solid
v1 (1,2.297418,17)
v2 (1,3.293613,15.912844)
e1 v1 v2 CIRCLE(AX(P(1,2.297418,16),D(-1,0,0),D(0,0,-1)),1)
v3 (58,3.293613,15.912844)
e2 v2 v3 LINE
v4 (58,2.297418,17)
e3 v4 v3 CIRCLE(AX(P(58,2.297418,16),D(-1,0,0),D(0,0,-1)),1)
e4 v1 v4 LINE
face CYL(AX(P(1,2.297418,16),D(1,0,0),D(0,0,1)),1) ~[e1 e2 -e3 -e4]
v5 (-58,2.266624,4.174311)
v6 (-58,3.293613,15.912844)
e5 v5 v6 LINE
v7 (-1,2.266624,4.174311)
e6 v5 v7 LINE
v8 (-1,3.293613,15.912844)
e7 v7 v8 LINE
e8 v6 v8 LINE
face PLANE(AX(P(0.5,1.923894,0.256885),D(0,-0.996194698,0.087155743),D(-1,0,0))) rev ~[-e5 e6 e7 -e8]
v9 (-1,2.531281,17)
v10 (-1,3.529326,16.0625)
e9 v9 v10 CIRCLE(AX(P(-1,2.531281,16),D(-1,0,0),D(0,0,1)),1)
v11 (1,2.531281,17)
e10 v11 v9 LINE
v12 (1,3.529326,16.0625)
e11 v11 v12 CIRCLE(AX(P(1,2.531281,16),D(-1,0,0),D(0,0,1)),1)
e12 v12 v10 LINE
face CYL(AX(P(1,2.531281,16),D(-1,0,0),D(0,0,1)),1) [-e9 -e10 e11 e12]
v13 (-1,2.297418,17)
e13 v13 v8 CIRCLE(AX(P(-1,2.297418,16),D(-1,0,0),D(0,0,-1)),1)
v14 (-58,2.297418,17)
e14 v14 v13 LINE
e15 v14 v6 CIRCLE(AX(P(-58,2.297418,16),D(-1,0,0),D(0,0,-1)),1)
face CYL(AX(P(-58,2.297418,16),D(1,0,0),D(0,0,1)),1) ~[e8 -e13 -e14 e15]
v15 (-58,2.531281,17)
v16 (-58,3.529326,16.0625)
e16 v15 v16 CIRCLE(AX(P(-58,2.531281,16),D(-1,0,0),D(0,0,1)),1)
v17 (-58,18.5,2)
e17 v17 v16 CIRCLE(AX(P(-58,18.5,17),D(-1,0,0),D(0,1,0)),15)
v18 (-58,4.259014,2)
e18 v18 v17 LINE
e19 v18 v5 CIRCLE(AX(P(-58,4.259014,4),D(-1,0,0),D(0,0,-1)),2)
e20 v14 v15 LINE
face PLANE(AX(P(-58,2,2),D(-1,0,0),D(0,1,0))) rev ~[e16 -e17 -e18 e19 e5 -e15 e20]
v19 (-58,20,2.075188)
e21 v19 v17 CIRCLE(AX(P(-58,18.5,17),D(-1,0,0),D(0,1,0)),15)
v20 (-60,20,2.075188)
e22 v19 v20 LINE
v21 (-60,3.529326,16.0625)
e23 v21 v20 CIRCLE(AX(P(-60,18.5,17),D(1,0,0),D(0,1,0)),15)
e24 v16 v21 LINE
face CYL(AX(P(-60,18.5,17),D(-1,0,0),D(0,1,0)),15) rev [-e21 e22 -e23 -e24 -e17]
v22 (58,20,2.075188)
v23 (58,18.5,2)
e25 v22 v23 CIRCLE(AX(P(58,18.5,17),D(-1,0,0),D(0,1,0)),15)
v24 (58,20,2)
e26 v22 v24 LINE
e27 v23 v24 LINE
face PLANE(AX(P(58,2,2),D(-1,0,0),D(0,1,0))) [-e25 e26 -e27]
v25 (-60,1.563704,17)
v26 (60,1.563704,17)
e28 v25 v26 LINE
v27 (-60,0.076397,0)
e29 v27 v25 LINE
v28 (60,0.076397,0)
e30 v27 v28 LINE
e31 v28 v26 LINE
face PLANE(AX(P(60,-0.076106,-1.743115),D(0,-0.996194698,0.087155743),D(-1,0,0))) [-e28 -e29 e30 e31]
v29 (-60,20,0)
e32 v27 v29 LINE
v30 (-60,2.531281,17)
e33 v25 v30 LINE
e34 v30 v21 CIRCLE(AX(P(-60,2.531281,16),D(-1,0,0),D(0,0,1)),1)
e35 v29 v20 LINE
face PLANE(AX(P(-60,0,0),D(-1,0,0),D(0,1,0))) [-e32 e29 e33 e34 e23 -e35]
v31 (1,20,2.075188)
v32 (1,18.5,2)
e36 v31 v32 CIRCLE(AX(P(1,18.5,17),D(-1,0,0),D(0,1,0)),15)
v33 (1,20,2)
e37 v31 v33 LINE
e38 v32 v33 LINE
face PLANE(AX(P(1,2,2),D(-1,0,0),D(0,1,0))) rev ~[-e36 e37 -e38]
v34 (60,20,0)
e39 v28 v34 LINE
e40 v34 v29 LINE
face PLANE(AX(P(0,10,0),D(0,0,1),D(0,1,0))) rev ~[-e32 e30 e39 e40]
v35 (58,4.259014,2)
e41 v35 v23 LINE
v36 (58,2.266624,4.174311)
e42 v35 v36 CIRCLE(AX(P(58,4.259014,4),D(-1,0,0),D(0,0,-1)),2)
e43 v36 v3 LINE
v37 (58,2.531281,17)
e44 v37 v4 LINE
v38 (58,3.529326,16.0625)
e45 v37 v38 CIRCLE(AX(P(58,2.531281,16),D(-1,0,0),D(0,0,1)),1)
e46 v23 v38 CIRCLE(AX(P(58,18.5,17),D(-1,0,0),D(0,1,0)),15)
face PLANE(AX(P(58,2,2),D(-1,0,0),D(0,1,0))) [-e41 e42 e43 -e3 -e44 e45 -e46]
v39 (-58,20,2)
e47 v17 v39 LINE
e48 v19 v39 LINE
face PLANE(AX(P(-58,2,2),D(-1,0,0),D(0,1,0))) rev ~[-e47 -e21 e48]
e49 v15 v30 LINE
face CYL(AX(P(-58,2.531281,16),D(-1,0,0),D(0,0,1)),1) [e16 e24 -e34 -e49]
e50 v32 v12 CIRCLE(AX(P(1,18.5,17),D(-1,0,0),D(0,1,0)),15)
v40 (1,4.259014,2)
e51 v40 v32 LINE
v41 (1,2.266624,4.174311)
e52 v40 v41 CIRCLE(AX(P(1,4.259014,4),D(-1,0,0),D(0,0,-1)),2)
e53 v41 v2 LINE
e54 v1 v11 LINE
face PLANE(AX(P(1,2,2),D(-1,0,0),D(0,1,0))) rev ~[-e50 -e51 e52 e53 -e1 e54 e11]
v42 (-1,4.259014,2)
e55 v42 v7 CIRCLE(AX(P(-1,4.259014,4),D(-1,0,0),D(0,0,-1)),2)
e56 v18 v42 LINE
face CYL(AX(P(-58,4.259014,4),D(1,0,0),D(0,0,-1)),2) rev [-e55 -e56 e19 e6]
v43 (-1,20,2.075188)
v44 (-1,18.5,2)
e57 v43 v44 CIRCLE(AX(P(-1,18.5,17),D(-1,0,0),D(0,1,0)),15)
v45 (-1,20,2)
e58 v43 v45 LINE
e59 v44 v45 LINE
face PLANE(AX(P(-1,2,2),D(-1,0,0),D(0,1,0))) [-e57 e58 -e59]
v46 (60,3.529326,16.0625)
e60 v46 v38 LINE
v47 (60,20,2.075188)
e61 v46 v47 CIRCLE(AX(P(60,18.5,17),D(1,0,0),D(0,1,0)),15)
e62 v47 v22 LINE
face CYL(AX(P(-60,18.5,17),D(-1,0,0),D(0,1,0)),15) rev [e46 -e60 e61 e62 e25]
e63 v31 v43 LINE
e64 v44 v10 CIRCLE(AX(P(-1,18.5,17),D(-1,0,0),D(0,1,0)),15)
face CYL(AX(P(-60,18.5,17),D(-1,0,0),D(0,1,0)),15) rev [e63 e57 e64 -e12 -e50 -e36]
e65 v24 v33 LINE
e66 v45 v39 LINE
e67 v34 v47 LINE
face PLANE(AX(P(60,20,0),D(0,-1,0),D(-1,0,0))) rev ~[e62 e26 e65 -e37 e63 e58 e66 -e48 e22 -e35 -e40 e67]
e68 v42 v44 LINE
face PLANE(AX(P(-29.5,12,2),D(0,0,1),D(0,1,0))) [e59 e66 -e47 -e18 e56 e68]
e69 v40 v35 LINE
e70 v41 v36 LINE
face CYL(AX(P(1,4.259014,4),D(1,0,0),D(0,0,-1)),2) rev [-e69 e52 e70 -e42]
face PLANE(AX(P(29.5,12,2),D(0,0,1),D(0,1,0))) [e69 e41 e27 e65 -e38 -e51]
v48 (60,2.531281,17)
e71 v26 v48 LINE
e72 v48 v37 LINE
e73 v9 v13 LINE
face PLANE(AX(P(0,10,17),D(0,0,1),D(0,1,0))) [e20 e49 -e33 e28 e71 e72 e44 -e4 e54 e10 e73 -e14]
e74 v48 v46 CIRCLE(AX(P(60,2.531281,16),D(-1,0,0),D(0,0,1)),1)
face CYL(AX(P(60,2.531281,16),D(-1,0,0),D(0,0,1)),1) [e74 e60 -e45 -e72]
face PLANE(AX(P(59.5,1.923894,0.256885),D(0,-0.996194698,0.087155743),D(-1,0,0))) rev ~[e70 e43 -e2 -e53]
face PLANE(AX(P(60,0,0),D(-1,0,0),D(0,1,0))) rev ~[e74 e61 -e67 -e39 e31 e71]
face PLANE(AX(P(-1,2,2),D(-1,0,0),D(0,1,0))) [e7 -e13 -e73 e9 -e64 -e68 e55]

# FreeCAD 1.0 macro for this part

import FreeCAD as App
import Part
import Sketcher
Q = App.Units.Quantity


def edges_at(feature, points):
    """Names of the edges that pass closest to the given points."""
    edges = feature.Shape.Edges
    near = lambda p: min(range(len(edges)), key=lambda i: edges[i].distToShape(Part.Vertex(*p))[0])
    return sorted({f"Edge{near(p) + 1}" for p in points})

doc = App.newDocument("Part")
body = doc.addObject("PartDesign::Body", "Body")

# Sketch on XY plane
sketch1 = body.newObject("Sketcher::SketchObject", "Sketch")
sketch1.AttachmentSupport = (doc.getObject("XY_Plane"), [""])
sketch1.MapMode = "FlatFace"
sketch1.addGeometry(Part.LineSegment(App.Vector(0, 120, 0), App.Vector(0, 0, 0)), False)
sketch1.addGeometry(Part.LineSegment(App.Vector(0, 0, 0), App.Vector(20, 0, 0)), False)
sketch1.addGeometry(Part.LineSegment(App.Vector(20, 0, 0), App.Vector(20, 120, 0)), False)
sketch1.addGeometry(Part.LineSegment(App.Vector(20, 120, 0), App.Vector(0, 120, 0)), False)
sketch1.addConstraint(Sketcher.Constraint("Coincident", 0, 2, 1, 1))
sketch1.addConstraint(Sketcher.Constraint("Coincident", 1, 2, 2, 1))
sketch1.addConstraint(Sketcher.Constraint("Coincident", 2, 2, 3, 1))
sketch1.addConstraint(Sketcher.Constraint("Coincident", 3, 2, 0, 1))
sketch1.addConstraint(Sketcher.Constraint("Vertical", 0))
sketch1.addConstraint(Sketcher.Constraint("Horizontal", 1))
sketch1.addConstraint(Sketcher.Constraint("Vertical", 2))
sketch1.addConstraint(Sketcher.Constraint("Horizontal", 3))
sketch1.addConstraint(Sketcher.Constraint("Coincident", 0, 2, -1, 1))
sketch1.addConstraint(Sketcher.Constraint("DistanceX", 1, 1, 1, 2, Q("20 mm")))
sketch1.addConstraint(Sketcher.Constraint("DistanceY", 0, 2, 0, 1, Q("120 mm")))
pad1 = body.newObject("PartDesign::Pad", "Pad")
pad1.Profile = sketch1
pad1.Length = 25
body2 = doc.addObject("PartDesign::Body", "Body001")
doc.recompute()

body.Placement = App.Placement(App.Vector(-20, -60, 0), App.Rotation(App.Vector(0, 1, 0), 5))
boolean = body2.newObject("PartDesign::Boolean", "Boolean")
boolean.Type = "Fuse"
boolean.addObjects([body])
body3 = doc.addObject("PartDesign::Body", "Body002")

# Sketch on XY plane
sketch2 = body3.newObject("Sketcher::SketchObject", "Sketch001")
sketch2.AttachmentSupport = (doc.getObject("XY_Plane002"), [""])
sketch2.MapMode = "FlatFace"
sketch2.addGeometry(Part.LineSegment(App.Vector(0, -2, 0), App.Vector(0, -58, 0)), False)
sketch2.addGeometry(Part.LineSegment(App.Vector(0, -58, 0), App.Vector(20, -58, 0)), False)
sketch2.addGeometry(Part.LineSegment(App.Vector(20, -58, 0), App.Vector(20, -2, 0)), False)
sketch2.addGeometry(Part.LineSegment(App.Vector(20, -2, 0), App.Vector(0, -2, 0)), False)
sketch2.addConstraint(Sketcher.Constraint("Coincident", 0, 2, 1, 1))
sketch2.addConstraint(Sketcher.Constraint("Coincident", 1, 2, 2, 1))
sketch2.addConstraint(Sketcher.Constraint("Coincident", 2, 2, 3, 1))
sketch2.addConstraint(Sketcher.Constraint("Coincident", 3, 2, 0, 1))
sketch2.addConstraint(Sketcher.Constraint("Vertical", 0))
sketch2.addConstraint(Sketcher.Constraint("Horizontal", 1))
sketch2.addConstraint(Sketcher.Constraint("Vertical", 2))
sketch2.addConstraint(Sketcher.Constraint("Horizontal", 3))
sketch2.addConstraint(Sketcher.Constraint("PointOnObject", 0, 2, -2))
sketch2.addConstraint(Sketcher.Constraint("DistanceX", 1, 1, 1, 2, Q("20 mm")))
sketch2.addConstraint(Sketcher.Constraint("DistanceY", 0, 2, 0, 1, Q("57 mm")))
sketch2.addConstraint(Sketcher.Constraint("DistanceY", 0, 2, -1, 1, Q("58.5 mm")))
pad2 = body3.newObject("PartDesign::Pad", "Pad001")
pad2.Profile = sketch2
pad2.Length = 17
doc.recompute()

boolean2 = body3.newObject("PartDesign::Boolean", "Boolean001")
boolean2.Type = "Cut"
boolean2.addObjects([body2])
doc.recompute()

fillet = body3.newObject("PartDesign::Fillet", "Fillet")
fillet.Base = (boolean2, edges_at(boolean2, [(0.076, -30, 0)]))
fillet.Radius = 2
body4 = doc.addObject("PartDesign::Body", "Body003")
doc.recompute()

body3.Placement = App.Placement(App.Vector(2, 0.5, 2), App.Rotation(App.Vector(0, 0, 1), 0))
boolean3 = body4.newObject("PartDesign::Boolean", "Boolean002")
boolean3.Type = "Fuse"
boolean3.addObjects([body3])
body5 = doc.addObject("PartDesign::Body", "Body004")

# Sketch on XY plane
sketch3 = body5.newObject("Sketcher::SketchObject", "Sketch002")
sketch3.AttachmentSupport = (doc.getObject("XY_Plane004"), [""])
sketch3.MapMode = "FlatFace"
sketch3.addGeometry(Part.LineSegment(App.Vector(0, 120, 0), App.Vector(0, 0, 0)), False)
sketch3.addGeometry(Part.LineSegment(App.Vector(0, 0, 0), App.Vector(20, 0, 0)), False)
sketch3.addGeometry(Part.LineSegment(App.Vector(20, 0, 0), App.Vector(20, 120, 0)), False)
sketch3.addGeometry(Part.LineSegment(App.Vector(20, 120, 0), App.Vector(0, 120, 0)), False)
sketch3.addConstraint(Sketcher.Constraint("Coincident", 0, 2, 1, 1))
sketch3.addConstraint(Sketcher.Constraint("Coincident", 1, 2, 2, 1))
sketch3.addConstraint(Sketcher.Constraint("Coincident", 2, 2, 3, 1))
sketch3.addConstraint(Sketcher.Constraint("Coincident", 3, 2, 0, 1))
sketch3.addConstraint(Sketcher.Constraint("Vertical", 0))
sketch3.addConstraint(Sketcher.Constraint("Horizontal", 1))
sketch3.addConstraint(Sketcher.Constraint("Vertical", 2))
sketch3.addConstraint(Sketcher.Constraint("Horizontal", 3))
sketch3.addConstraint(Sketcher.Constraint("Coincident", 0, 2, -1, 1))
sketch3.addConstraint(Sketcher.Constraint("DistanceX", 1, 1, 1, 2, Q("20 mm")))
sketch3.addConstraint(Sketcher.Constraint("DistanceY", 0, 2, 0, 1, Q("120 mm")))
pad3 = body5.newObject("PartDesign::Pad", "Pad002")
pad3.Profile = sketch3
pad3.Length = 25
body6 = doc.addObject("PartDesign::Body", "Body005")
doc.recompute()

body5.Placement = App.Placement(App.Vector(-20, -60, 0), App.Rotation(App.Vector(0, 1, 0), 5))
boolean4 = body6.newObject("PartDesign::Boolean", "Boolean003")
boolean4.Type = "Fuse"
boolean4.addObjects([body5])
body7 = doc.addObject("PartDesign::Body", "Body006")

# Sketch on XY plane
sketch4 = body7.newObject("Sketcher::SketchObject", "Sketch003")
sketch4.AttachmentSupport = (doc.getObject("XY_Plane006"), [""])
sketch4.MapMode = "FlatFace"
sketch4.addGeometry(Part.LineSegment(App.Vector(0, -2, 0), App.Vector(0, -58, 0)), False)
sketch4.addGeometry(Part.LineSegment(App.Vector(0, -58, 0), App.Vector(20, -58, 0)), False)
sketch4.addGeometry(Part.LineSegment(App.Vector(20, -58, 0), App.Vector(20, -2, 0)), False)
sketch4.addGeometry(Part.LineSegment(App.Vector(20, -2, 0), App.Vector(0, -2, 0)), False)
sketch4.addConstraint(Sketcher.Constraint("Coincident", 0, 2, 1, 1))
sketch4.addConstraint(Sketcher.Constraint("Coincident", 1, 2, 2, 1))
sketch4.addConstraint(Sketcher.Constraint("Coincident", 2, 2, 3, 1))
sketch4.addConstraint(Sketcher.Constraint("Coincident", 3, 2, 0, 1))
sketch4.addConstraint(Sketcher.Constraint("Vertical", 0))
sketch4.addConstraint(Sketcher.Constraint("Horizontal", 1))
sketch4.addConstraint(Sketcher.Constraint("Vertical", 2))
sketch4.addConstraint(Sketcher.Constraint("Horizontal", 3))
sketch4.addConstraint(Sketcher.Constraint("PointOnObject", 0, 2, -2))
sketch4.addConstraint(Sketcher.Constraint("DistanceX", 1, 1, 1, 2, Q("20 mm")))
sketch4.addConstraint(Sketcher.Constraint("DistanceY", 0, 2, 0, 1, Q("57 mm")))
sketch4.addConstraint(Sketcher.Constraint("DistanceY", 0, 2, -1, 1, Q("58.5 mm")))
pad4 = body7.newObject("PartDesign::Pad", "Pad003")
pad4.Profile = sketch4
pad4.Length = 17
doc.recompute()

boolean5 = body7.newObject("PartDesign::Boolean", "Boolean004")
boolean5.Type = "Cut"
boolean5.addObjects([body6])
doc.recompute()

fillet2 = body7.newObject("PartDesign::Fillet", "Fillet001")
fillet2.Base = (boolean5, edges_at(boolean5, [(0.076, -30, 0)]))
fillet2.Radius = 2
body8 = doc.addObject("PartDesign::Body", "Body007")
body8.AllowCompound = True
doc.recompute()

body7.Placement = App.Placement(App.Vector(2, 59.5, 2), App.Rotation(App.Vector(0, 0, 1), 0))
boolean6 = body8.newObject("PartDesign::Boolean", "Boolean005")
boolean6.Type = "Fuse"
boolean6.addObjects([body7])
doc.recompute()

boolean7 = body8.newObject("PartDesign::Boolean", "Boolean006")
boolean7.Type = "Fuse"
boolean7.addObjects([body4])
body9 = doc.addObject("PartDesign::Body", "Body008")

# Sketch on XZ plane
sketch5 = body9.newObject("Sketcher::SketchObject", "Sketch004")
sketch5.AttachmentSupport = (doc.getObject("XZ_Plane008"), [""])
sketch5.MapMode = "FlatFace"
sketch5.AttachmentOffset = App.Placement(App.Vector(0, 0, -60), App.Rotation())
sketch5.addGeometry(Part.Circle(App.Vector(18, 17, 0), App.Vector(0, 0, 1), 15), False)
sketch5.addConstraint(Sketcher.Constraint("Diameter", 0, Q("30 mm")))
sketch5.addConstraint(Sketcher.Constraint("DistanceY", -1, 1, 0, 3, Q("17 mm")))
sketch5.addConstraint(Sketcher.Constraint("DistanceX", -1, 1, 0, 3, Q("18.5 mm")))
pad5 = body9.newObject("PartDesign::Pad", "Pad004")
pad5.Profile = sketch5
pad5.Length = 120
body10 = doc.addObject("PartDesign::Body", "Body009")

# Sketch on XY plane
sketch6 = body10.newObject("Sketcher::SketchObject", "Sketch005")
sketch6.AttachmentSupport = (doc.getObject("XY_Plane009"), [""])
sketch6.MapMode = "FlatFace"
sketch6.addGeometry(Part.LineSegment(App.Vector(0, 120, 0), App.Vector(0, 0, 0)), False)
sketch6.addGeometry(Part.LineSegment(App.Vector(0, 0, 0), App.Vector(20, 0, 0)), False)
sketch6.addGeometry(Part.LineSegment(App.Vector(20, 0, 0), App.Vector(20, 120, 0)), False)
sketch6.addGeometry(Part.LineSegment(App.Vector(20, 120, 0), App.Vector(0, 120, 0)), False)
sketch6.addConstraint(Sketcher.Constraint("Coincident", 0, 2, 1, 1))
sketch6.addConstraint(Sketcher.Constraint("Coincident", 1, 2, 2, 1))
sketch6.addConstraint(Sketcher.Constraint("Coincident", 2, 2, 3, 1))
sketch6.addConstraint(Sketcher.Constraint("Coincident", 3, 2, 0, 1))
sketch6.addConstraint(Sketcher.Constraint("Vertical", 0))
sketch6.addConstraint(Sketcher.Constraint("Horizontal", 1))
sketch6.addConstraint(Sketcher.Constraint("Vertical", 2))
sketch6.addConstraint(Sketcher.Constraint("Horizontal", 3))
sketch6.addConstraint(Sketcher.Constraint("Coincident", 0, 2, -1, 1))
sketch6.addConstraint(Sketcher.Constraint("DistanceX", 1, 1, 1, 2, Q("20 mm")))
sketch6.addConstraint(Sketcher.Constraint("DistanceY", 0, 2, 0, 1, Q("120 mm")))
pad6 = body10.newObject("PartDesign::Pad", "Pad005")
pad6.Profile = sketch6
pad6.Length = 25
body11 = doc.addObject("PartDesign::Body", "Body010")
doc.recompute()

body10.Placement = App.Placement(App.Vector(-20, -60, 0), App.Rotation(App.Vector(0, 1, 0), 5))
boolean8 = body11.newObject("PartDesign::Boolean", "Boolean007")
boolean8.Type = "Fuse"
boolean8.addObjects([body10])
body12 = doc.addObject("PartDesign::Body", "Body011")

# Sketch on XY plane
sketch7 = body12.newObject("Sketcher::SketchObject", "Sketch006")
sketch7.AttachmentSupport = (doc.getObject("XY_Plane011"), [""])
sketch7.MapMode = "FlatFace"
sketch7.addGeometry(Part.LineSegment(App.Vector(0, 60, 0), App.Vector(0, -60, 0)), False)
sketch7.addGeometry(Part.LineSegment(App.Vector(0, -60, 0), App.Vector(20, -60, 0)), False)
sketch7.addGeometry(Part.LineSegment(App.Vector(20, -60, 0), App.Vector(20, 60, 0)), False)
sketch7.addGeometry(Part.LineSegment(App.Vector(20, 60, 0), App.Vector(0, 60, 0)), False)
sketch7.addConstraint(Sketcher.Constraint("Coincident", 0, 2, 1, 1))
sketch7.addConstraint(Sketcher.Constraint("Coincident", 1, 2, 2, 1))
sketch7.addConstraint(Sketcher.Constraint("Coincident", 2, 2, 3, 1))
sketch7.addConstraint(Sketcher.Constraint("Coincident", 3, 2, 0, 1))
sketch7.addConstraint(Sketcher.Constraint("Vertical", 0))
sketch7.addConstraint(Sketcher.Constraint("Horizontal", 1))
sketch7.addConstraint(Sketcher.Constraint("Vertical", 2))
sketch7.addConstraint(Sketcher.Constraint("Horizontal", 3))
sketch7.addConstraint(Sketcher.Constraint("Symmetric", 0, 2, 3, 2, -1, 1))
sketch7.addConstraint(Sketcher.Constraint("DistanceX", 1, 1, 1, 2, Q("20 mm")))
sketch7.addConstraint(Sketcher.Constraint("DistanceY", 0, 2, 0, 1, Q("120 mm")))
pad7 = body12.newObject("PartDesign::Pad", "Pad006")
pad7.Profile = sketch7
pad7.Length = 17
doc.recompute()

boolean9 = body12.newObject("PartDesign::Boolean", "Boolean008")
boolean9.Type = "Cut"
boolean9.addObjects([body11])
doc.recompute()

boolean10 = body12.newObject("PartDesign::Boolean", "Boolean009")
boolean10.Type = "Cut"
boolean10.addObjects([body9])
doc.recompute()

boolean11 = body12.newObject("PartDesign::Boolean", "Boolean010")
boolean11.Type = "Cut"
boolean11.addObjects([body8])
doc.recompute()

fillet3 = body12.newObject("PartDesign::Fillet", "Fillet002")
fillet3.Base = (boolean11, edges_at(boolean11, [(3.389, 29.5, 17), (3.389, -29.5, 17)]))
fillet3.Radius = 1
doc.recompute()

fillet4 = body12.newObject("PartDesign::Fillet", "Fillet003")
fillet4.Base = (fillet3, edges_at(fillet3, [(3.5, 59, 17), (3.5, -59, 17), (3.5, 0, 17)]))
fillet4.Radius = 1
body13 = doc.addObject("PartDesign::Body", "Body012")
doc.recompute()

body12.Placement = App.Placement(App.Vector(0, 0, 0), App.Rotation(App.Vector(0, 0, 1), 90))
boolean12 = body13.newObject("PartDesign::Boolean", "Boolean011")
boolean12.Type = "Fuse"
boolean12.addObjects([body12])

doc.recompute()
